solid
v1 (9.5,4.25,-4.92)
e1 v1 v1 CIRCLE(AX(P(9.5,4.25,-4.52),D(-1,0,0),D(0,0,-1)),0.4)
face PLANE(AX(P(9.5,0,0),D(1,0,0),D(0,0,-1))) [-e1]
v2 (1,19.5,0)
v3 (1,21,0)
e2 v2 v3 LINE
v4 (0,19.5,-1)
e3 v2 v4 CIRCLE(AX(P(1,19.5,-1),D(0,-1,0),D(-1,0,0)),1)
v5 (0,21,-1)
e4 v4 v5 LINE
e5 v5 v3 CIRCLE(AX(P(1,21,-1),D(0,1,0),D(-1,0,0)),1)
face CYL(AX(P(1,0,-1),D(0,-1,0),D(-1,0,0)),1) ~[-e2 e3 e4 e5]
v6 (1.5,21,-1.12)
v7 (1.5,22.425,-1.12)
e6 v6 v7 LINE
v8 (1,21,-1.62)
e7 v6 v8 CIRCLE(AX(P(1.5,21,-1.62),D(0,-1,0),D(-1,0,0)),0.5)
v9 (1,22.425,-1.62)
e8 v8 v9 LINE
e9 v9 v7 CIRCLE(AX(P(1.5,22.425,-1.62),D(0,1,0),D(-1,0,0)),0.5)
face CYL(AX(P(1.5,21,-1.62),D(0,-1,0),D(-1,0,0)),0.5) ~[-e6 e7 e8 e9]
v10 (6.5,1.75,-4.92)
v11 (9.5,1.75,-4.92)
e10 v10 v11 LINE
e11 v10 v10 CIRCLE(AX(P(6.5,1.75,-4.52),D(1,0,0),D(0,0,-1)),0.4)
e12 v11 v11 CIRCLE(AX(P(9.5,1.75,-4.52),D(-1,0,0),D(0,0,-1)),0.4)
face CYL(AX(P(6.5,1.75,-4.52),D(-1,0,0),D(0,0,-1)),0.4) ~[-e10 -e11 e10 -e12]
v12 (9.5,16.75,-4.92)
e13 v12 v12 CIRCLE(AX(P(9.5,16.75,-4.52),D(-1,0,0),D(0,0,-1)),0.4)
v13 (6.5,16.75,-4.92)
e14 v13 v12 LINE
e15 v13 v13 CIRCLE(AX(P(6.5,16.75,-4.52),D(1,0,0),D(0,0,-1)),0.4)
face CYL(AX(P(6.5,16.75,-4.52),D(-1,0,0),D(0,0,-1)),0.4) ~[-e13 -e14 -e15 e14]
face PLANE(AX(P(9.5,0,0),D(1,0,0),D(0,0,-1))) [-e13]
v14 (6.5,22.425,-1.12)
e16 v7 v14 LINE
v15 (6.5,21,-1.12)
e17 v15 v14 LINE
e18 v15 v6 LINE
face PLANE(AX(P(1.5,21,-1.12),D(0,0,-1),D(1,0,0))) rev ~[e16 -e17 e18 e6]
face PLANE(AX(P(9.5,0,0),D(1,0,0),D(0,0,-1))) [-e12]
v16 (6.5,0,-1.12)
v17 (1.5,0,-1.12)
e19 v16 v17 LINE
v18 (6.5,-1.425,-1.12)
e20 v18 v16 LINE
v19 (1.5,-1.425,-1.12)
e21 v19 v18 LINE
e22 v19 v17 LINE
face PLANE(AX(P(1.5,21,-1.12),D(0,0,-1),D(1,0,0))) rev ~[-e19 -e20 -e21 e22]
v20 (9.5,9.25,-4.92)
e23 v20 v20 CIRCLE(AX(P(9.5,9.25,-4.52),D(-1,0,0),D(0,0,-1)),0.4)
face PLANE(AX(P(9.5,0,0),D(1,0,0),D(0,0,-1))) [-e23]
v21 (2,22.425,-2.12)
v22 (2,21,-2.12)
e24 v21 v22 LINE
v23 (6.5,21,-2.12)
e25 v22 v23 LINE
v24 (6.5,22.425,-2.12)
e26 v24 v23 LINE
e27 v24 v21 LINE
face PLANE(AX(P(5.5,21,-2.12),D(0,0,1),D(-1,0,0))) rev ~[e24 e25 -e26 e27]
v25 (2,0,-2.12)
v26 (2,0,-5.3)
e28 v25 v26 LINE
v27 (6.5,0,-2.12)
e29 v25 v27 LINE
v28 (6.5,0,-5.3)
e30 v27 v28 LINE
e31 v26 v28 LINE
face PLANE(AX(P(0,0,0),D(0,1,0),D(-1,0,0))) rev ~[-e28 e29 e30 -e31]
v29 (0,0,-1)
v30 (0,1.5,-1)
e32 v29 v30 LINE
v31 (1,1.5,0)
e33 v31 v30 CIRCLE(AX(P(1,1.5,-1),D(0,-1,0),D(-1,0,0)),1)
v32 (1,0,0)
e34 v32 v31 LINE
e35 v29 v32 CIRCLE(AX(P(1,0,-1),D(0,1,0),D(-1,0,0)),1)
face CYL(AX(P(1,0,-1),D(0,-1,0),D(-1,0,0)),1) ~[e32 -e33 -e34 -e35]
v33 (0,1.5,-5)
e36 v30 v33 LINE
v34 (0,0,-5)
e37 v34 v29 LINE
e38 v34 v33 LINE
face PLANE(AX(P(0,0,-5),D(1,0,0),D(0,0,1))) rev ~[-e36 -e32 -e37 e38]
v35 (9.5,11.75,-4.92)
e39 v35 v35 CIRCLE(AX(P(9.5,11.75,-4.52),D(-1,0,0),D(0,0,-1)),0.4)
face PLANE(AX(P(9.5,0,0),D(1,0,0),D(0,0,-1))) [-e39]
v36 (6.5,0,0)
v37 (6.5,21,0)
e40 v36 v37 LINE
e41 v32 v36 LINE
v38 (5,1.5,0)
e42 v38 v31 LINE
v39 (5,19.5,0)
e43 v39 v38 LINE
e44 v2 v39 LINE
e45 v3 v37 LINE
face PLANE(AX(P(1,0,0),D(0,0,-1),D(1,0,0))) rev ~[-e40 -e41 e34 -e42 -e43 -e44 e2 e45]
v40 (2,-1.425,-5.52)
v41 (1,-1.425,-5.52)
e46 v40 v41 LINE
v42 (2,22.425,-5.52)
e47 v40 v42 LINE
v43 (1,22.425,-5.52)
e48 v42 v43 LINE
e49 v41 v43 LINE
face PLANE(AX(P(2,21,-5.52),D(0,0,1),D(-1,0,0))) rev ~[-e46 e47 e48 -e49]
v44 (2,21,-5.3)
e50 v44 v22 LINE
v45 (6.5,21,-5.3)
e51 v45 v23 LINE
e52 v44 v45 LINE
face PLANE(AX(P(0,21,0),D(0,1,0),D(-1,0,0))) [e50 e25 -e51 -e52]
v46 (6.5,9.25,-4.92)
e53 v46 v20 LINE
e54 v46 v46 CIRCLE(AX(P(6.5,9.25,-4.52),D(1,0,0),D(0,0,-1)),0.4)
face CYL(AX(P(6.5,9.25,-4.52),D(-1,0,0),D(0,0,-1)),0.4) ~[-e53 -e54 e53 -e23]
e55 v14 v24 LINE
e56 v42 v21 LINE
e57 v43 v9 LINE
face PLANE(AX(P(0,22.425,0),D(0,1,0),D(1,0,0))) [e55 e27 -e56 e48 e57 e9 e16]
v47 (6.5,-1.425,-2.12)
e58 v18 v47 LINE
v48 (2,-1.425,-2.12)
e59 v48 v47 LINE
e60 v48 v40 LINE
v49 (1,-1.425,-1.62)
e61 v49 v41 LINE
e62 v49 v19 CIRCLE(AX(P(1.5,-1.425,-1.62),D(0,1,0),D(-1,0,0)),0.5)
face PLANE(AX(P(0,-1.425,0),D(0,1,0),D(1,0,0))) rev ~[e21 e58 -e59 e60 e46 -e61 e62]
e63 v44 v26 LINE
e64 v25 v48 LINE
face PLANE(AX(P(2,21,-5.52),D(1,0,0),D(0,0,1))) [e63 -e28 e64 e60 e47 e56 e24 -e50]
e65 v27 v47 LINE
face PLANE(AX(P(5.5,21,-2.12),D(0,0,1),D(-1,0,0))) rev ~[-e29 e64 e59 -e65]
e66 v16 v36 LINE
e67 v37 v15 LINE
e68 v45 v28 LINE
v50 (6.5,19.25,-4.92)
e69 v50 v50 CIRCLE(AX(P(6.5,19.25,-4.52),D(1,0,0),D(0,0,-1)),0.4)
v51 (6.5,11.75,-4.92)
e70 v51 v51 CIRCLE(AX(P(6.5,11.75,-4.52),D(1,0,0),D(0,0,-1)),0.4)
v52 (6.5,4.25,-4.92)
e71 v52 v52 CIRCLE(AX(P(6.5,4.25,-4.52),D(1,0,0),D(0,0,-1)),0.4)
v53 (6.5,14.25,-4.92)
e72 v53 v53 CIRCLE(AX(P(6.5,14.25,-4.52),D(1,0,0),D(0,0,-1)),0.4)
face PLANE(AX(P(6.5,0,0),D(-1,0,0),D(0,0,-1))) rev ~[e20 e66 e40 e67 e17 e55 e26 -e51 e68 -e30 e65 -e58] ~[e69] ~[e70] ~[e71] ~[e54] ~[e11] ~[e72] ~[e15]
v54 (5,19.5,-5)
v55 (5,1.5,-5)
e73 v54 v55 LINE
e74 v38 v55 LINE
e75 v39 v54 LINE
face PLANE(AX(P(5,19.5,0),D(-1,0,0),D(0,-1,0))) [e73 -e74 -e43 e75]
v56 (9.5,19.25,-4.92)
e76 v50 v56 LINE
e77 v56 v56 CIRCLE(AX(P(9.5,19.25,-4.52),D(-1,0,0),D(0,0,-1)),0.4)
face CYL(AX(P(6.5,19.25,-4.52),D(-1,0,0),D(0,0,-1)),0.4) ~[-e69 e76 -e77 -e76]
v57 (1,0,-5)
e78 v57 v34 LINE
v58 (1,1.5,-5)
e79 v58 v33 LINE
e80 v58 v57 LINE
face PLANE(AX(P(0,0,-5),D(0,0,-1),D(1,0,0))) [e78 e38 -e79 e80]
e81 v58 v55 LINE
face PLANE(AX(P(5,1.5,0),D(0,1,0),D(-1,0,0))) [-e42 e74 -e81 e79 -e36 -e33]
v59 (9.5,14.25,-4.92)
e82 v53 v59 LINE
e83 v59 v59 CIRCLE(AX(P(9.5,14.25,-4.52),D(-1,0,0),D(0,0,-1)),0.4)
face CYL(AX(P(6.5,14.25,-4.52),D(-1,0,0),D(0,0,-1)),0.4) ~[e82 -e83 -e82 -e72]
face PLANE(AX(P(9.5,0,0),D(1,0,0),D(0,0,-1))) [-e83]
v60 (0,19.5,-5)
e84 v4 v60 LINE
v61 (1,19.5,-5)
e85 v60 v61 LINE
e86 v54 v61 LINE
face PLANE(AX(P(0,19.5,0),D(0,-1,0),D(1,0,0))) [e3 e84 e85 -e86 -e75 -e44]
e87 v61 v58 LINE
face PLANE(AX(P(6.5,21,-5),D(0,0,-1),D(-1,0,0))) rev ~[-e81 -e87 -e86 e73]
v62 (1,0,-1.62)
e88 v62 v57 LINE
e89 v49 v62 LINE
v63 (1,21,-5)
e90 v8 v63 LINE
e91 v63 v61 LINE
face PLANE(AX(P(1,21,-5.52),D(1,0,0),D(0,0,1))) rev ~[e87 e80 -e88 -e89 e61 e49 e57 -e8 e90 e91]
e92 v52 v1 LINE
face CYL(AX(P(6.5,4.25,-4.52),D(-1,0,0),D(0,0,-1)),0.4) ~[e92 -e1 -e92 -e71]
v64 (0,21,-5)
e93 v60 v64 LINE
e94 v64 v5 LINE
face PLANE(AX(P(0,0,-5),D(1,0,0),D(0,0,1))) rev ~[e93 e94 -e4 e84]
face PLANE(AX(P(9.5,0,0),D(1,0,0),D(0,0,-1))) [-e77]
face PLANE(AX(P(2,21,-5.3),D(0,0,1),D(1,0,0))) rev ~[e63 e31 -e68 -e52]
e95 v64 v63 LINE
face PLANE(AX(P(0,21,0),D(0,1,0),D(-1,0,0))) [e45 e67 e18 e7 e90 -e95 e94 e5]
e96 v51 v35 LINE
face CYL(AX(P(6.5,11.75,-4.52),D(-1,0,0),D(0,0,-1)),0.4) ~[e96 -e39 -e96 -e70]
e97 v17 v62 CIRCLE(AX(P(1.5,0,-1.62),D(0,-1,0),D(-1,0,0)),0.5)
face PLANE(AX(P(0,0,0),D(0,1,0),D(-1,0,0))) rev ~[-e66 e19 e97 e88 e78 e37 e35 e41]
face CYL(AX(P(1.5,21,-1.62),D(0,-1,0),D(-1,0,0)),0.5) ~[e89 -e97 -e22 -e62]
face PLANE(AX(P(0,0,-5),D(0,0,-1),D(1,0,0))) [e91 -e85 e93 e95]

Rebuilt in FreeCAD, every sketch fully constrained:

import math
import FreeCAD as App
import Part
import Sketcher


def add_polygon(sketch, points):
    """Adds a closed chain of lines whose ends are joined by coincident constraints."""
    first, n = sketch.GeometryCount, len(points)
    for a, b in zip(points, points[1:] + points[:1]):
        sketch.addGeometry(Part.LineSegment(App.Vector(*a, 0), App.Vector(*b, 0)), False)
    for i in range(n):
        sketch.addConstraint(Sketcher.Constraint("Coincident", first + i, 2, first + (i + 1) % n, 1))

doc = App.newDocument("Part")
body = doc.addObject("PartDesign::Body", "Body")

# Sketch on XZ plane
sketch1 = body.newObject("Sketcher::SketchObject", "Sketch")
sketch1.AttachmentSupport = (doc.getObject("XZ_Plane"), [""])
sketch1.MapMode = "FlatFace"
sketch1.addGeometry([
    Part.LineSegment(App.Vector(0, -5, 0), App.Vector(0, -1, 0)),  # 0
    Part.ArcOfCircle(Part.Circle(App.Vector(1, -1, 0), App.Vector(0, 0, 1), 1), math.radians(90), math.radians(180)),  # 1
    Part.LineSegment(App.Vector(1, 0, 0), App.Vector(6.5, 0, 0)),  # 2
    Part.LineSegment(App.Vector(6.5, 0, 0), App.Vector(6.5, -5, 0)),  # 3
    Part.LineSegment(App.Vector(6.5, -5, 0), App.Vector(0, -5, 0)),  # 4
], False)
sketch1.addConstraint([
    Sketcher.Constraint("Tangent", 0, 2, 1, 2),
    Sketcher.Constraint("Tangent", 1, 1, 2, 1),
    Sketcher.Constraint("Coincident", 2, 2, 3, 1),
    Sketcher.Constraint("Coincident", 3, 2, 4, 1),
    Sketcher.Constraint("Coincident", 4, 2, 0, 1),
    Sketcher.Constraint("Vertical", 0),
    Sketcher.Constraint("Horizontal", 2),
    Sketcher.Constraint("Vertical", 3),
    Sketcher.Constraint("Horizontal", 4),
    Sketcher.Constraint("PointOnObject", 0, 2, -2),
    Sketcher.Constraint("PointOnObject", 1, 1, -1),
    Sketcher.Constraint("Radius", 1, 1.0),
    Sketcher.Constraint("DistanceY", 3, 2, 3, 1, 5.0),
    Sketcher.Constraint("DistanceX", 4, 2, 4, 1, 6.5),
])
pad1 = body.newObject("PartDesign::Pad", "Pad")
pad1.Profile = sketch1
pad1.Length = 21
pad1.Reversed = True

# Sketch on XZ plane
sketch2 = body.newObject("Sketcher::SketchObject", "Sketch001")
sketch2.AttachmentSupport = (doc.getObject("XZ_Plane"), [""])
sketch2.MapMode = "FlatFace"
sketch2.AttachmentOffset = App.Placement(App.Vector(0, 0, -21), App.Rotation())
sketch2.addGeometry([
    Part.LineSegment(App.Vector(2, -5.52, 0), App.Vector(1, -5.52, 0)),  # 0
    Part.LineSegment(App.Vector(1, -5.52, 0), App.Vector(1, -1.62, 0)),  # 1
    Part.ArcOfCircle(Part.Circle(App.Vector(1.5, -1.62, 0), App.Vector(0, 0, 1), 0.5), math.radians(90), math.radians(180)),  # 2
    Part.LineSegment(App.Vector(1.5, -1.12, 0), App.Vector(6.5, -1.12, 0)),  # 3
    Part.LineSegment(App.Vector(6.5, -1.12, 0), App.Vector(6.5, -2.12, 0)),  # 4
    Part.LineSegment(App.Vector(6.5, -2.12, 0), App.Vector(2, -2.12, 0)),  # 5
    Part.LineSegment(App.Vector(2, -2.12, 0), App.Vector(2, -5.52, 0)),  # 6
], False)
sketch2.addConstraint([
    Sketcher.Constraint("Coincident", 0, 2, 1, 1),
    Sketcher.Constraint("Tangent", 1, 2, 2, 2),
    Sketcher.Constraint("Tangent", 2, 1, 3, 1),
    Sketcher.Constraint("Coincident", 3, 2, 4, 1),
    Sketcher.Constraint("Coincident", 4, 2, 5, 1),
    Sketcher.Constraint("Coincident", 5, 2, 6, 1),
    Sketcher.Constraint("Coincident", 6, 2, 0, 1),
    Sketcher.Constraint("Horizontal", 0),
    Sketcher.Constraint("Vertical", 1),
    Sketcher.Constraint("Horizontal", 3),
    Sketcher.Constraint("Vertical", 4),
    Sketcher.Constraint("Horizontal", 5),
    Sketcher.Constraint("Vertical", 6),
    Sketcher.Constraint("Equal", 0, 4),
    Sketcher.Constraint("Radius", 2, 0.5),
    Sketcher.Constraint("DistanceX", 0, 2, 0, 1, 1.0),
    Sketcher.Constraint("DistanceX", -1, 1, 0, 2, 1.0),
    Sketcher.Constraint("DistanceY", 0, 2, 2, 1, 4.4),
    Sketcher.Constraint("DistanceX", 1, 2, 3, 2, 5.5),
    Sketcher.Constraint("DistanceY", 2, 3, -1, 1, 1.62),
])
pad2 = body.newObject("PartDesign::Pad", "Pad001")
pad2.Profile = sketch2
pad2.Type = "TwoLengths"
pad2.Length = 1.425
pad2.Length2 = 22.425
pad2.Reversed = True

# Sketch on XY plane
sketch3 = body.newObject("Sketcher::SketchObject", "Sketch002")
sketch3.AttachmentSupport = (doc.getObject("XY_Plane"), [""])
sketch3.MapMode = "FlatFace"
add_polygon(sketch3, [(0, 19.5), (0, 1.5), (5, 1.5), (5, 19.5)])  # lines 0-3
sketch3.addConstraint([
    Sketcher.Constraint("Vertical", 0),
    Sketcher.Constraint("Horizontal", 1),
    Sketcher.Constraint("Vertical", 2),
    Sketcher.Constraint("Horizontal", 3),
    Sketcher.Constraint("PointOnObject", 0, 2, -2),
    Sketcher.Constraint("DistanceX", 1, 1, 1, 2, 5.0),
    Sketcher.Constraint("DistanceY", -1, 1, 0, 2, 1.5),
    Sketcher.Constraint("DistanceY", 0, 2, 0, 1, 18.0),
])
pocket1 = body.newObject("PartDesign::Pocket", "Pocket")
pocket1.Profile = sketch3
pocket1.Length = 5

# Sketch on YZ plane
sketch4 = body.newObject("Sketcher::SketchObject", "Sketch003")
sketch4.AttachmentSupport = (doc.getObject("YZ_Plane"), [""])
sketch4.MapMode = "FlatFace"
sketch4.AttachmentOffset = App.Placement(App.Vector(0, 0, 6.5), App.Rotation())
sketch4.addGeometry([
    Part.Circle(App.Vector(1.75, -4.52, 0), App.Vector(0, 0, 1), 0.4),  # 0
    Part.Circle(App.Vector(4.25, -4.52, 0), App.Vector(0, 0, 1), 0.4),  # 1
    Part.Circle(App.Vector(9.25, -4.52, 0), App.Vector(0, 0, 1), 0.4),  # 2
    Part.Circle(App.Vector(19.25, -4.52, 0), App.Vector(0, 0, 1), 0.4),  # 3
    Part.Circle(App.Vector(16.75, -4.52, 0), App.Vector(0, 0, 1), 0.4),  # 4
    Part.Circle(App.Vector(14.25, -4.52, 0), App.Vector(0, 0, 1), 0.4),  # 5
    Part.Circle(App.Vector(11.75, -4.52, 0), App.Vector(0, 0, 1), 0.4),  # 6
], False)
sketch4.addConstraint([
    Sketcher.Constraint("Equal", 0, 1),
    Sketcher.Constraint("Equal", 1, 2),
    Sketcher.Constraint("Equal", 2, 3),
    Sketcher.Constraint("Equal", 3, 4),
    Sketcher.Constraint("Equal", 4, 5),
    Sketcher.Constraint("Equal", 5, 6),
    Sketcher.Constraint("Horizontal", 0, 3, 1, 3),
    Sketcher.Constraint("Horizontal", 1, 3, 2, 3),
    Sketcher.Constraint("Horizontal", 2, 3, 3, 3),
    Sketcher.Constraint("Horizontal", 3, 3, 4, 3),
    Sketcher.Constraint("Horizontal", 4, 3, 5, 3),
    Sketcher.Constraint("Horizontal", 5, 3, 6, 3),
    Sketcher.Constraint("Diameter", 0, 0.8),
    Sketcher.Constraint("DistanceX", 0, 3, 1, 3, 2.5),
    Sketcher.Constraint("DistanceX", 0, 3, 3, 3, 17.5),
    Sketcher.Constraint("DistanceX", 4, 3, 3, 3, 2.5),
    Sketcher.Constraint("DistanceX", 5, 3, 4, 3, 2.5),
    Sketcher.Constraint("DistanceX", 2, 3, 6, 3, 2.5),
    Sketcher.Constraint("DistanceX", 6, 3, 5, 3, 2.5),
    Sketcher.Constraint("DistanceX", -1, 1, 0, 3, 1.75),
    Sketcher.Constraint("DistanceY", 0, 3, -1, 1, 4.52),
])
pad3 = body.newObject("PartDesign::Pad", "Pad002")
pad3.Profile = sketch4
pad3.Length = 3

# Sketch on XZ plane
sketch5 = body.newObject("Sketcher::SketchObject", "Sketch004")
sketch5.AttachmentSupport = (doc.getObject("XZ_Plane"), [""])
sketch5.MapMode = "FlatFace"
sketch5.AttachmentOffset = App.Placement(App.Vector(0, 0, -21), App.Rotation())
add_polygon(sketch5, [(2, -5), (6.5, -5), (6.5, -5.3), (2, -5.3)])  # lines 0-3
sketch5.addConstraint([
    Sketcher.Constraint("Horizontal", 0),
    Sketcher.Constraint("Vertical", 1),
    Sketcher.Constraint("Horizontal", 2),
    Sketcher.Constraint("Vertical", 3),
    Sketcher.Constraint("DistanceY", 1, 2, 1, 1, 0.3),
    Sketcher.Constraint("DistanceX", 0, 1, 0, 2, 4.5),
    Sketcher.Constraint("DistanceY", 0, 2, -1, 1, 5.0),
    Sketcher.Constraint("DistanceX", -1, 1, 2, 2, 2.0),
])
pad4 = body.newObject("PartDesign::Pad", "Pad003")
pad4.Profile = sketch5
pad4.Length = 21

doc.recompute()
